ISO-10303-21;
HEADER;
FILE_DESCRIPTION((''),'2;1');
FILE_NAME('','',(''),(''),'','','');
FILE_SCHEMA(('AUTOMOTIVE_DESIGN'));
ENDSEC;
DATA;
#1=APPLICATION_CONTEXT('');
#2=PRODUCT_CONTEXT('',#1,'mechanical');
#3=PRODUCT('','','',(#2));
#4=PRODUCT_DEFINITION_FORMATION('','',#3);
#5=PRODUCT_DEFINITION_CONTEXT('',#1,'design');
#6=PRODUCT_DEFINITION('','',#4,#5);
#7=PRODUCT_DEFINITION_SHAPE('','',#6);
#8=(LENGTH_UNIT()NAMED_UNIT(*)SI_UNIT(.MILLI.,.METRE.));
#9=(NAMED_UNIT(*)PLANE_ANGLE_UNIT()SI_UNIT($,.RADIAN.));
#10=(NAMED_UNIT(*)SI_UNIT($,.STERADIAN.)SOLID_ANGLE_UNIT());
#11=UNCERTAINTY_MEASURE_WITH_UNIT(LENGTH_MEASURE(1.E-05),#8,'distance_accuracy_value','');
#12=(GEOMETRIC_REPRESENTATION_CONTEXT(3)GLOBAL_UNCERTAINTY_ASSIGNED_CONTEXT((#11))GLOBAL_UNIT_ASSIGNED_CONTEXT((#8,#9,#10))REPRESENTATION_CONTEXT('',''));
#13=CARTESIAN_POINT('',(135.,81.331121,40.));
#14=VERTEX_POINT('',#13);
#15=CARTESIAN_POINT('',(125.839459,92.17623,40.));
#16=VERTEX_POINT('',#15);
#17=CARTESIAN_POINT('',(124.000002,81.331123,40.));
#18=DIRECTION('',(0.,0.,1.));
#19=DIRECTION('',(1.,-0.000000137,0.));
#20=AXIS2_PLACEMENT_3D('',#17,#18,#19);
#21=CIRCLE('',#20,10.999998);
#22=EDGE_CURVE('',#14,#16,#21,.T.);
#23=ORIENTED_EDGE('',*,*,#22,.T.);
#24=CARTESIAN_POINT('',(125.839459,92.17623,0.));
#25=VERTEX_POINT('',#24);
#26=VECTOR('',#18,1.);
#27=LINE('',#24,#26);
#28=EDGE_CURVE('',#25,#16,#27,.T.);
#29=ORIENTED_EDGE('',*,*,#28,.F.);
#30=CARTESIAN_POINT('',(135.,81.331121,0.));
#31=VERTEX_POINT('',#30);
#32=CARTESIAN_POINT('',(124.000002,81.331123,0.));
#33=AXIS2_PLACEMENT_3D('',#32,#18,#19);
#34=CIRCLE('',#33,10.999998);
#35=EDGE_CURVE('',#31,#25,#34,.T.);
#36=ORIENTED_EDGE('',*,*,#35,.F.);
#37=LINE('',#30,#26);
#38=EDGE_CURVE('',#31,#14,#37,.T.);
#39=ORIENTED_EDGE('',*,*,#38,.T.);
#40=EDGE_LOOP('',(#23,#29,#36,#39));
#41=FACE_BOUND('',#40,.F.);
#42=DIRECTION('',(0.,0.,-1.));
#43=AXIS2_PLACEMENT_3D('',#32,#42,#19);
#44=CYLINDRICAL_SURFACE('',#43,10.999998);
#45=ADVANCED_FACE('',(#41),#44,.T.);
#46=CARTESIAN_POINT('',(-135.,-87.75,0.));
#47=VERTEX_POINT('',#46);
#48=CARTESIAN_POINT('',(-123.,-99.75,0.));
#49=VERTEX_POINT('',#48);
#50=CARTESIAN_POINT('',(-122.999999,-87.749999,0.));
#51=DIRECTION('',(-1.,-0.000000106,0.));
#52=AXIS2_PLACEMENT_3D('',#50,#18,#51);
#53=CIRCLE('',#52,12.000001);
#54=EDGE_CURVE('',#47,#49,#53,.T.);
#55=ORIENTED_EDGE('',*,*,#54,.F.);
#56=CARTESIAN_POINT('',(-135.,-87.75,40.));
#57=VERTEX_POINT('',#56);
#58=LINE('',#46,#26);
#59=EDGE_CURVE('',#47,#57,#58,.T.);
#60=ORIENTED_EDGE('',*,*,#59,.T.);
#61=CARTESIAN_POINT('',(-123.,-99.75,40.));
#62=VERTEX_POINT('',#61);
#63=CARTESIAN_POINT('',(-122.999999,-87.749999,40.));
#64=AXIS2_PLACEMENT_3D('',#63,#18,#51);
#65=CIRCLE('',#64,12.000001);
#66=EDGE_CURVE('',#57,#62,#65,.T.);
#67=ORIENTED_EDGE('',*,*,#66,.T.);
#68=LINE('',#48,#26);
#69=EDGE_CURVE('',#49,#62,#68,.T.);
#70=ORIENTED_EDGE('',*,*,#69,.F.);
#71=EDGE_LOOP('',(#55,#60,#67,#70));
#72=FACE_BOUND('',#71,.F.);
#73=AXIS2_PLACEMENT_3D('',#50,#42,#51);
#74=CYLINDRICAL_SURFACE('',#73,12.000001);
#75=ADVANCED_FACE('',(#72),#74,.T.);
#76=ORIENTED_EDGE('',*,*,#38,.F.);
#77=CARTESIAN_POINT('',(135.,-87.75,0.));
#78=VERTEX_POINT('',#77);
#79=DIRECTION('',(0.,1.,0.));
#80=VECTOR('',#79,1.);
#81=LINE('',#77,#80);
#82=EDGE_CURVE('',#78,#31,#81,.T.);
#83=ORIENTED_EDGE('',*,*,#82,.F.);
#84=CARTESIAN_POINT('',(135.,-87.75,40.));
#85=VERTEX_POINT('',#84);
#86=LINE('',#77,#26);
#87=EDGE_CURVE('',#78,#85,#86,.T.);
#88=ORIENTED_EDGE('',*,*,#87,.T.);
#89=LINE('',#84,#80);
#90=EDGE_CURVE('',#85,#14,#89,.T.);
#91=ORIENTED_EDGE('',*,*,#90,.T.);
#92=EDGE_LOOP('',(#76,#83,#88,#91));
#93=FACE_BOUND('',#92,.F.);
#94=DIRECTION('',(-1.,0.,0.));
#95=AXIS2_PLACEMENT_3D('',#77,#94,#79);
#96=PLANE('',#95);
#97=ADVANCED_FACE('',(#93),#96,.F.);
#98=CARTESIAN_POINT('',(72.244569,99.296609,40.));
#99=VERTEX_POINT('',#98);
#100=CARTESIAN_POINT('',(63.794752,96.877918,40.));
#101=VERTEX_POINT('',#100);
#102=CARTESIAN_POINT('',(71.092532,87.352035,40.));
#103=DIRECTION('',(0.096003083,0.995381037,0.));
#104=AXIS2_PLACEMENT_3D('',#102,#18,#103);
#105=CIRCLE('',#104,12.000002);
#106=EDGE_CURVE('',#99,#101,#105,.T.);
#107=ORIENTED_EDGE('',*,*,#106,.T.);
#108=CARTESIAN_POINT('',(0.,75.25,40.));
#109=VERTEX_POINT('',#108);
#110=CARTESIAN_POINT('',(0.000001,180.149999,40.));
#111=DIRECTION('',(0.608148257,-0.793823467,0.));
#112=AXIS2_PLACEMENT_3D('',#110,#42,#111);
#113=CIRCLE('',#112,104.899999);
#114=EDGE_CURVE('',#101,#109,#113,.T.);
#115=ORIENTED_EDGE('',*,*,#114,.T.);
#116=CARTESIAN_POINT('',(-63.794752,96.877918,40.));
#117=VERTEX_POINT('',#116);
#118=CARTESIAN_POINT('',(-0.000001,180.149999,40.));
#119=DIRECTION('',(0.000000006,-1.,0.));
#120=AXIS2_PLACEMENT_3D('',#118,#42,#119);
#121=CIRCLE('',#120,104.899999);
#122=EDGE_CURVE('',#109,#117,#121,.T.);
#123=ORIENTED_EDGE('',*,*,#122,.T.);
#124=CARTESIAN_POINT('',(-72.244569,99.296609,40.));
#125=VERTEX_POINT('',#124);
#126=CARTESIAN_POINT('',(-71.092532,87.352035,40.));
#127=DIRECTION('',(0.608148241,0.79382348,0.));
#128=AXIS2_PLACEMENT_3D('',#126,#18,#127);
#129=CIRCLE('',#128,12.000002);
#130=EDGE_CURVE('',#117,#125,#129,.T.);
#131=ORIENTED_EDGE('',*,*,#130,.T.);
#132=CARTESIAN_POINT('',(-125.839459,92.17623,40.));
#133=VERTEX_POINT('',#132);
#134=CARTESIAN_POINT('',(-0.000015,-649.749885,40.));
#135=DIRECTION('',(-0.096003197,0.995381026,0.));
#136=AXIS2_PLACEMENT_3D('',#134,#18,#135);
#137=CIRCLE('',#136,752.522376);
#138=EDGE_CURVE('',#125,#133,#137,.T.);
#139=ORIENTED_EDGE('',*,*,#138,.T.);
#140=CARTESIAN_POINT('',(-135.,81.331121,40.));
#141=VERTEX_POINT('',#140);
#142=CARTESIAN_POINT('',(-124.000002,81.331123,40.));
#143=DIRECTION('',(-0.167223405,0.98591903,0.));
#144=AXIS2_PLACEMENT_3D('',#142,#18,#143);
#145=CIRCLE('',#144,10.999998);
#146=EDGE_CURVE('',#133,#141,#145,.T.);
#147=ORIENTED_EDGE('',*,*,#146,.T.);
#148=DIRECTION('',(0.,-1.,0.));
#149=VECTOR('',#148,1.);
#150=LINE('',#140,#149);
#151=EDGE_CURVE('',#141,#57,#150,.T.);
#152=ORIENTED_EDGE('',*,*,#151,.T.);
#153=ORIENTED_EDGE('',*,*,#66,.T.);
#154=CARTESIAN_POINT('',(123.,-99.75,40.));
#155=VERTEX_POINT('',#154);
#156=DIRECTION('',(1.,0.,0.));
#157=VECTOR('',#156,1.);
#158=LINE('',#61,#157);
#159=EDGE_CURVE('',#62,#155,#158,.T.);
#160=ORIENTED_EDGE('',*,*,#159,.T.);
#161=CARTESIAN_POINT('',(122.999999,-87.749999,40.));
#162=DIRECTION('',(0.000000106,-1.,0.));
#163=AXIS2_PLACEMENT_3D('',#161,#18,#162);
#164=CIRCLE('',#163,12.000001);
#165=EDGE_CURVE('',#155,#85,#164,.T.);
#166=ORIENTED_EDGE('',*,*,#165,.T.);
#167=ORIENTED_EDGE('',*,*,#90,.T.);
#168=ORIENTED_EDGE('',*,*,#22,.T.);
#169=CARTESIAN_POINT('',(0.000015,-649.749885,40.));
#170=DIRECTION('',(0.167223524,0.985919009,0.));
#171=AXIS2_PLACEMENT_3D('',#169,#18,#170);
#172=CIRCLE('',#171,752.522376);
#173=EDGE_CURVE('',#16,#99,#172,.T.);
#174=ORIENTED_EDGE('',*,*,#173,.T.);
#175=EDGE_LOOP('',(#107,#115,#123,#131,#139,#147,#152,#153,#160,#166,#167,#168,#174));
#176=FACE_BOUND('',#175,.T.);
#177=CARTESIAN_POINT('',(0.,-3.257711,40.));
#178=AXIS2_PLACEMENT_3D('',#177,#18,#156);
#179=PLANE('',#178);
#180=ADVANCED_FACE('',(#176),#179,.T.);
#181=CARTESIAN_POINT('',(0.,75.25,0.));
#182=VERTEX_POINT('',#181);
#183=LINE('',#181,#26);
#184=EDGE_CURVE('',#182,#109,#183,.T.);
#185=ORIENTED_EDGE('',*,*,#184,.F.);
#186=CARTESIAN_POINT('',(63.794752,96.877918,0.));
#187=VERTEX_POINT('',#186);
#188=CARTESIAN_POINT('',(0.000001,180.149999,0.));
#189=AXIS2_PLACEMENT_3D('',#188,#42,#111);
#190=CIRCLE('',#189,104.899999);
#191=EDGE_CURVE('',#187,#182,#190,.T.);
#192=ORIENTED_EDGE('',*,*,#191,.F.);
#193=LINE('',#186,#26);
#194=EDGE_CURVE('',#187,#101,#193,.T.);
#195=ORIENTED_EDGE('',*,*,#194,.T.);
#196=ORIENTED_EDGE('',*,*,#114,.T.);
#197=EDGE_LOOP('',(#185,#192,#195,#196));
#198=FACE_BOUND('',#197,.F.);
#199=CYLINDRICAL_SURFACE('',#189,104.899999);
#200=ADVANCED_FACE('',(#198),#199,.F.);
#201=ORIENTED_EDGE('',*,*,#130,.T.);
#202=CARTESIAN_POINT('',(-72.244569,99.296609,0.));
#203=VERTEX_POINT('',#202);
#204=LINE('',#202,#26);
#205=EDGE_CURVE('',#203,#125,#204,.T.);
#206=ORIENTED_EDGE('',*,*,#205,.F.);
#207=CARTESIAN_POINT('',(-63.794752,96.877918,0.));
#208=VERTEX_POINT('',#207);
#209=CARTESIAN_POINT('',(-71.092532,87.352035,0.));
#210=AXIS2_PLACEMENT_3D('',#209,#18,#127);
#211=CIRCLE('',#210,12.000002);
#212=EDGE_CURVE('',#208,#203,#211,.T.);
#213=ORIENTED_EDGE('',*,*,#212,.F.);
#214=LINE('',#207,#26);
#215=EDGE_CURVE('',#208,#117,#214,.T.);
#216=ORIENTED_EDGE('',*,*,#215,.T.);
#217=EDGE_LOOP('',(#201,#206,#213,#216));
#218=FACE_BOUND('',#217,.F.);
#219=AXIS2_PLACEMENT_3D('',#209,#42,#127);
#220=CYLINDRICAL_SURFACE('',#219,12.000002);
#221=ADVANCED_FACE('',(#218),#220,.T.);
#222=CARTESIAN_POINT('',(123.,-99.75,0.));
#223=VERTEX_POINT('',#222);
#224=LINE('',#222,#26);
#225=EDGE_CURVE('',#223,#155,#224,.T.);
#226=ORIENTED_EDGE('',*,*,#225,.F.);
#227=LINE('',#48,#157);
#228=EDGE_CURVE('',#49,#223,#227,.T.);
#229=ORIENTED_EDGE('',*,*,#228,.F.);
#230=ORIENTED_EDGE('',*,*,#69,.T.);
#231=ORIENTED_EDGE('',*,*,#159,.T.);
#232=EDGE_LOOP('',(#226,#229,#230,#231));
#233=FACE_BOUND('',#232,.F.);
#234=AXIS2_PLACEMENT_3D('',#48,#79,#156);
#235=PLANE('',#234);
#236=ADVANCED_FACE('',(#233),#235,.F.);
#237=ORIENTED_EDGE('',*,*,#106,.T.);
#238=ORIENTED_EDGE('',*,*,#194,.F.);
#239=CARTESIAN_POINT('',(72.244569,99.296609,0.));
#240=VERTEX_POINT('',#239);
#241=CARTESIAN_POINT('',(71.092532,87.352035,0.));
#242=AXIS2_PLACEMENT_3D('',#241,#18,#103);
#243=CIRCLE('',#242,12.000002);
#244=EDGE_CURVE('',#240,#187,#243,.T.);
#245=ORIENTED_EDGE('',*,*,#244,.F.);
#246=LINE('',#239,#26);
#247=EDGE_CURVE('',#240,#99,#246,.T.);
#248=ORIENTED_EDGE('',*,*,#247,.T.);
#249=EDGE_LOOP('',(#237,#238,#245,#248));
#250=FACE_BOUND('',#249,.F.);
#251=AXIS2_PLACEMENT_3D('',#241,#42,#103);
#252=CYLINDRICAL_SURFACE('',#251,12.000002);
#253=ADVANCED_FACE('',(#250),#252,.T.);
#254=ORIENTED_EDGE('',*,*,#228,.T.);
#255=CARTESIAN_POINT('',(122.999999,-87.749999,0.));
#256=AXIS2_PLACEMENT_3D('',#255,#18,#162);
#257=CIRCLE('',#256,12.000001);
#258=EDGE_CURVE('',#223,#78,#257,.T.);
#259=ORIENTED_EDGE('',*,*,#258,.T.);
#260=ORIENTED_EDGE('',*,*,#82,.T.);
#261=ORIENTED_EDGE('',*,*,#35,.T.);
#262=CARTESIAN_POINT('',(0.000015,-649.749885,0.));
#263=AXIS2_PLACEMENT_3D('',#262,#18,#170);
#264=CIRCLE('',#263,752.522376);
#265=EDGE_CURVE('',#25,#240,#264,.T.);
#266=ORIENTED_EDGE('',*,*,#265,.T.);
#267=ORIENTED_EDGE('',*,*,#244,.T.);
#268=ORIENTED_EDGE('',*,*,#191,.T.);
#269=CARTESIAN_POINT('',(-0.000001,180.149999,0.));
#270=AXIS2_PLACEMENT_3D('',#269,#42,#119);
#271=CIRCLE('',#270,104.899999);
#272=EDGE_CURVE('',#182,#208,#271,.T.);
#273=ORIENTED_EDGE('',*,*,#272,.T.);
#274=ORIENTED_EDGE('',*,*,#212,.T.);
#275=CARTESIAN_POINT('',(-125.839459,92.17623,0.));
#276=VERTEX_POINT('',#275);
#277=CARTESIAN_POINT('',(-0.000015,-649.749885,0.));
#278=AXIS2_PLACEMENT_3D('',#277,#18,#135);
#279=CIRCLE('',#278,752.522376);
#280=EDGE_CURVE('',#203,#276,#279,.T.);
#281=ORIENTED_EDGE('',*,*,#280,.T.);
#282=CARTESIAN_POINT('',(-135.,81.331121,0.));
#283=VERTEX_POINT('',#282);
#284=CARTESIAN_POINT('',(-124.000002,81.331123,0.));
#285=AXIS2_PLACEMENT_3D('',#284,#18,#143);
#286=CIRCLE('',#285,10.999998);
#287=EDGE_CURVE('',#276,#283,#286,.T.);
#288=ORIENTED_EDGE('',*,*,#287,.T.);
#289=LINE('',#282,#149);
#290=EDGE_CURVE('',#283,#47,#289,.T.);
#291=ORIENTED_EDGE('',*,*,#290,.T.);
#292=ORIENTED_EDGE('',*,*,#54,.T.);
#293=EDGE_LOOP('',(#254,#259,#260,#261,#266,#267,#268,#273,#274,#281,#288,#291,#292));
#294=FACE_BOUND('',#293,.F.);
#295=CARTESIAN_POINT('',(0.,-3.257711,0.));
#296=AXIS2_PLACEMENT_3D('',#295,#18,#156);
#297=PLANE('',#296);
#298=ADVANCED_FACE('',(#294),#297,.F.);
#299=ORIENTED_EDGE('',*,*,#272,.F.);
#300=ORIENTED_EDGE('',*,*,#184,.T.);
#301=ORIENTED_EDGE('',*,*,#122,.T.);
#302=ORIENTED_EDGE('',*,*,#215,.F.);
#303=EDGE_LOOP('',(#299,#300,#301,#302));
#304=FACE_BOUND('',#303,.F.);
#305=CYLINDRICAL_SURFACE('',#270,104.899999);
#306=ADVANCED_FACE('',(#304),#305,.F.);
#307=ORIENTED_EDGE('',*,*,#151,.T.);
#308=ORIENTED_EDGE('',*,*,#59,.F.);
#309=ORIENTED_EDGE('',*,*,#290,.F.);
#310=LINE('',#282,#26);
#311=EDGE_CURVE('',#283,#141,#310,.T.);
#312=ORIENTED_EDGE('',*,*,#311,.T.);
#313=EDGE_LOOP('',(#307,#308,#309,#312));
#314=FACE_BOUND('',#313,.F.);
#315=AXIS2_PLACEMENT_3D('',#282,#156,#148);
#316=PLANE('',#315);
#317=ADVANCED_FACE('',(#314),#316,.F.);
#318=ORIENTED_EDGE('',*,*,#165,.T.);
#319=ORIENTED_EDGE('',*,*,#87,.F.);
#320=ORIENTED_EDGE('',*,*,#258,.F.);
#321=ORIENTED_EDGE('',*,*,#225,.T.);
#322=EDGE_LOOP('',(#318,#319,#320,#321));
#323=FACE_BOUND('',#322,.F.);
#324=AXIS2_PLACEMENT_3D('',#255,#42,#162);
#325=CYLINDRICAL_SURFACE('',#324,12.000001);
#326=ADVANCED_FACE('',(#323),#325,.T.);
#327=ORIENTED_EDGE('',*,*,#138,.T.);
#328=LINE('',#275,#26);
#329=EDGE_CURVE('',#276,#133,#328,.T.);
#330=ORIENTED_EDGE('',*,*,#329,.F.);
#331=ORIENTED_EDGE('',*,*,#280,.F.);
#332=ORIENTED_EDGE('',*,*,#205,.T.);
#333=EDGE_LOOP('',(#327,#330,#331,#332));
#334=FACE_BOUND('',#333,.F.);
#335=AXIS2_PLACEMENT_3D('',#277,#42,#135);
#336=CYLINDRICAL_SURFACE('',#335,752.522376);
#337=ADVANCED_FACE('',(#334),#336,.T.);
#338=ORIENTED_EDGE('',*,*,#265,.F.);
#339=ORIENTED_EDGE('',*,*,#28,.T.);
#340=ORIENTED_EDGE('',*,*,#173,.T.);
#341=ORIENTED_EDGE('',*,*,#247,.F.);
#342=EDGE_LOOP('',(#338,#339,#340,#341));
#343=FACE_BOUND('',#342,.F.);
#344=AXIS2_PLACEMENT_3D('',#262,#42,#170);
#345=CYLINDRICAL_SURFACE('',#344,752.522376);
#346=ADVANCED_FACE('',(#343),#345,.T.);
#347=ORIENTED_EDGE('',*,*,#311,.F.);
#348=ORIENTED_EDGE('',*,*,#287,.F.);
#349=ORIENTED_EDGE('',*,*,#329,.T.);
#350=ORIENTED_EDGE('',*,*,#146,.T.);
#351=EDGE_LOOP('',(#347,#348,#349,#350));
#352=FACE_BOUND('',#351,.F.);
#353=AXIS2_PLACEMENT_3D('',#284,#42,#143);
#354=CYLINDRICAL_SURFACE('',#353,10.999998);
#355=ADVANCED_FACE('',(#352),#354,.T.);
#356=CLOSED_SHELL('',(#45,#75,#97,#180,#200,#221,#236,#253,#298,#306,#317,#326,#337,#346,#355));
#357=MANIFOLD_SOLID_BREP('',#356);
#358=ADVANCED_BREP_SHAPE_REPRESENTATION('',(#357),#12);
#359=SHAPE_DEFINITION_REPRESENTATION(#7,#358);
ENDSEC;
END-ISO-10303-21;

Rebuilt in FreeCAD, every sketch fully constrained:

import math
import FreeCAD as App
import Part
import Sketcher

V = App.Vector
Q = App.Units.Quantity

doc = App.newDocument("Part")
body = doc.addObject("PartDesign::Body", "Body")

# Sketch on XY plane
sketch1 = body.newObject("Sketcher::SketchObject", "Sketch")
sketch1.AttachmentSupport = (doc.getObject("XY_Plane"), [""])
sketch1.MapMode = "FlatFace"
sketch1.addGeometry([
    Part.ArcOfCircle(Part.Circle(V(-122.999999, -87.749999, 0), V(0, 0, 1), 12.000001), math.radians(-179.999994), math.radians(-90.000006)),  # 0
    Part.LineSegment(V(-123, -99.75, 0), V(123, -99.75, 0)),  # 1
    Part.ArcOfCircle(Part.Circle(V(122.999999, -87.749999, 0), V(0, 0, 1), 12.000001), math.radians(-89.999994), math.radians(-0.000006)),  # 2
    Part.LineSegment(V(135, -87.75, 0), V(135, 81.331121, 0)),  # 3
    Part.ArcOfCircle(Part.Circle(V(124.000002, 81.331123, 0), V(0, 0, 1), 10.999998), math.radians(-0.000008), math.radians(80.373579)),  # 4
    Part.ArcOfCircle(Part.Circle(V(0.000015, -649.749885, 0), V(0, 0, 1), 752.522376), math.radians(80.373572), math.radians(84.490937)),  # 5
    Part.ArcOfCircle(Part.Circle(V(71.092532, 87.352035, 0), V(0, 0, 1), 12.000002), math.radians(84.490944), math.radians(127.455729)),  # 6
    Part.ArcOfCircle(Part.Circle(V(0.000001, 180.149999, 0), V(0, 0, 1), 104.899999), math.radians(-90), math.radians(-52.54427)),  # 7
    Part.ArcOfCircle(Part.Circle(V(-0.000001, 180.149999, 0), V(0, 0, 1), 104.899999), math.radians(-127.45573), math.radians(-90)),  # 8
    Part.ArcOfCircle(Part.Circle(V(-71.092532, 87.352035, 0), V(0, 0, 1), 12.000002), math.radians(52.544271), math.radians(95.509056)),  # 9
    Part.ArcOfCircle(Part.Circle(V(-0.000015, -649.749885, 0), V(0, 0, 1), 752.522376), math.radians(95.509063), math.radians(99.626428)),  # 10
    Part.ArcOfCircle(Part.Circle(V(-124.000002, 81.331123, 0), V(0, 0, 1), 10.999998), math.radians(99.626421), math.radians(180.000008)),  # 11
    Part.LineSegment(V(-135, 81.331121, 0), V(-135, -87.75, 0)),  # 12
], False)
sketch1.addConstraint([
    Sketcher.Constraint("Tangent", 0, 2, 1, 1),
    Sketcher.Constraint("Tangent", 1, 2, 2, 1),
    Sketcher.Constraint("Tangent", 2, 2, 3, 1),
    Sketcher.Constraint("Tangent", 3, 2, 4, 1),
    Sketcher.Constraint("Tangent", 4, 2, 5, 1),
    Sketcher.Constraint("Tangent", 5, 2, 6, 1),
    Sketcher.Constraint("Tangent", 6, 2, 7, 2),
    Sketcher.Constraint("Tangent", 7, 1, 8, 2),
    Sketcher.Constraint("Tangent", 8, 1, 9, 1),
    Sketcher.Constraint("Tangent", 9, 2, 10, 1),
    Sketcher.Constraint("Tangent", 10, 2, 11, 1),
    Sketcher.Constraint("Tangent", 11, 2, 12, 1),
    Sketcher.Constraint("Tangent", 12, 2, 0, 1),
    Sketcher.Constraint("Horizontal", 1),
    Sketcher.Constraint("Vertical", 3),
    Sketcher.Constraint("Vertical", 12),
    Sketcher.Constraint("Equal", 0, 2),
    Sketcher.Constraint("Equal", 2, 6),
    Sketcher.Constraint("Equal", 7, 8),
    Sketcher.Constraint("Equal", 6, 9),
    Sketcher.Constraint("Equal", 5, 10),
    Sketcher.Constraint("Equal", 4, 11),
    Sketcher.Constraint("Symmetric", 6, 3, 9, 3, -2),
    Sketcher.Constraint("Symmetric", 4, 3, 11, 3, -2),
    Sketcher.Constraint("PointOnObject", 7, 1, -2),
    Sketcher.Constraint("Radius", 0, Q("12.000001 mm")),
    Sketcher.Constraint("Radius", 4, Q("10.999998 mm")),
    Sketcher.Constraint("Radius", 7, Q("104.899999 mm")),
    Sketcher.Constraint("DistanceX", 1, 1, 1, 2, Q("246 mm")),
    Sketcher.Constraint("DistanceY", 0, 3, -1, 1, Q("87.749999 mm")),
    Sketcher.Constraint("DistanceY", -1, 1, 7, 3, Q("180.149999 mm")),
    Sketcher.Constraint("Radius", 5, Q("752.522376 mm")),
    Sketcher.Constraint("DistanceY", 3, 1, 3, 2, Q("169.081121 mm")),
    Sketcher.Constraint("DistanceX", -1, 1, 6, 3, Q("71.092532 mm")),
])
pad1 = body.newObject("PartDesign::Pad", "Pad")
pad1.Profile = sketch1
pad1.Length = 40

doc.recompute()
